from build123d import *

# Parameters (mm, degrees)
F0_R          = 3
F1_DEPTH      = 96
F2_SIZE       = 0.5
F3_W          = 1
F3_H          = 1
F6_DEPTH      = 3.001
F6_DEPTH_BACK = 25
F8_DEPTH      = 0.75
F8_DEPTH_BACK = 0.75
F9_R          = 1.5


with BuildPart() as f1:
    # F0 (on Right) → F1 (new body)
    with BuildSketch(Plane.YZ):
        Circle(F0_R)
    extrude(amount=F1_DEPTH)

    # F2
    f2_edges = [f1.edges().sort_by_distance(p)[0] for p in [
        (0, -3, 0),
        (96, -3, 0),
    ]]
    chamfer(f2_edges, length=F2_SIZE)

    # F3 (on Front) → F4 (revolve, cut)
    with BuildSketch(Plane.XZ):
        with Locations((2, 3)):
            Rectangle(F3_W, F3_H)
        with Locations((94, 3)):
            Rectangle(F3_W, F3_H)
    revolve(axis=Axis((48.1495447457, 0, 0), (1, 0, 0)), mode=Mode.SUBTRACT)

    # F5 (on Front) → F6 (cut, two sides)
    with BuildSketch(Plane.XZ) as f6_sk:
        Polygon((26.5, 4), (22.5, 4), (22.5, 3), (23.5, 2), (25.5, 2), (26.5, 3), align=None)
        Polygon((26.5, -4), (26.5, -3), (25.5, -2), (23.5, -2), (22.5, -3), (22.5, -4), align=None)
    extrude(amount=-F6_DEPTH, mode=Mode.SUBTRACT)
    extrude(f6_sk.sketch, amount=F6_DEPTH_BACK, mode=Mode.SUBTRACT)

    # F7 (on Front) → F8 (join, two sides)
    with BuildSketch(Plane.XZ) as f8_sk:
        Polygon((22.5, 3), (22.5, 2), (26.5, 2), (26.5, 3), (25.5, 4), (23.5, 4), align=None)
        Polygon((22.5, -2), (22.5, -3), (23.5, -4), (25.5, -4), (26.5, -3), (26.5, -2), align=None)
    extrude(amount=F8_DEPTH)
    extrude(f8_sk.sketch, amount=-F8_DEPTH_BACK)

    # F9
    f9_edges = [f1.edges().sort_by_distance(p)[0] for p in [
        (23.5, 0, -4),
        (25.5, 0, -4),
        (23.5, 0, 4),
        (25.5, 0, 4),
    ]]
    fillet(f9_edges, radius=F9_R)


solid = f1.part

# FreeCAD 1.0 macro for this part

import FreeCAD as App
import Part
import Sketcher


def edges_at(feature, points):
    """Names of the edges that pass closest to the given points."""
    edges = feature.Shape.Edges
    near = lambda p: min(range(len(edges)), key=lambda i: edges[i].distToShape(Part.Vertex(*p))[0])
    return sorted({f"Edge{near(p) + 1}" for p in points})


def add_polygon(sketch, points):
    """Adds a closed chain of lines whose ends are joined by coincident constraints."""
    first, n = sketch.GeometryCount, len(points)
    for a, b in zip(points, points[1:] + points[:1]):
        sketch.addGeometry(Part.LineSegment(App.Vector(*a, 0), App.Vector(*b, 0)), False)
    for i in range(n):
        sketch.addConstraint(Sketcher.Constraint("Coincident", first + i, 2, first + (i + 1) % n, 1))

doc = App.newDocument("Part")
params = doc.addObject("Spreadsheet::Sheet", "Params")
for row, (alias, value) in enumerate([
    ("sketch1_diameter", "6 mm"),
    ("pad1_length", "96 mm"),
    ("chamfer_size", "0.5 mm"),
    ("sketch2_width", "1 mm"),
    ("groove_angle", "360 deg"),
    ("sketch3_width", "4 mm"),
    ("sketch3_width2", "2 mm"),
    ("sketch3_height", "1 mm"),
    ("sketch4_width", "4 mm"),
    ("sketch4_width2", "2 mm"),
    ("sketch4_height", "1 mm"),
    ("pad2_length", "0.75 mm"),
    ("pad2_length2", "0.75 mm"),
    ("fillet_radius", "1.5 mm"),
], start=1):
    params.set(f"A{row}", alias)
    params.set(f"B{row}", "=" + value)
    params.setAlias(f"B{row}", alias)

body = doc.addObject("PartDesign::Body", "Body")

# Sketch on YZ plane
sketch1 = doc.addObject("Sketcher::SketchObject", "Sketch")
body.addObject(sketch1)
sketch1.AttachmentSupport = (doc.YZ_Plane, [""])
sketch1.MapMode = "FlatFace"
sketch1.addGeometry(Part.Circle(App.Vector(0, 0, 0), App.Vector(0, 0, 1), 3), False)
sketch1.addConstraint([
    Sketcher.Constraint("Coincident", 0, 3, -1, 1),
    Sketcher.Constraint("Diameter", 0, 6.0),
])
sketch1.setExpression("Constraints[1]", "Params.sketch1_diameter")
pad1 = doc.addObject("PartDesign::Pad", "Pad")
body.addObject(pad1)
pad1.Profile = sketch1
pad1.setExpression("Length", "Params.pad1_length")
doc.recompute()

chamfer = doc.addObject("PartDesign::Chamfer", "Chamfer")
body.addObject(chamfer)
chamfer.Base = (pad1, edges_at(pad1, [(0, -3, 0), (96, -3, 0)]))
chamfer.setExpression("Size", "Params.chamfer_size")

# Sketch on XZ plane
sketch2 = doc.addObject("Sketcher::SketchObject", "Sketch001")
body.addObject(sketch2)
sketch2.AttachmentSupport = (doc.XZ_Plane, [""])
sketch2.MapMode = "FlatFace"
add_polygon(sketch2, [(1.5, 3.5), (1.5, 2.5), (2.5, 2.5), (2.5, 3.5)])  # lines 0-3
add_polygon(sketch2, [(93.5, 3.5), (93.5, 2.5), (94.5, 2.5), (94.5, 3.5)])  # lines 4-7
sketch2.addConstraint([
    Sketcher.Constraint("Vertical", 0),
    Sketcher.Constraint("Horizontal", 1),
    Sketcher.Constraint("Vertical", 2),
    Sketcher.Constraint("Horizontal", 3),
    Sketcher.Constraint("Vertical", 4),
    Sketcher.Constraint("Horizontal", 5),
    Sketcher.Constraint("Vertical", 6),
    Sketcher.Constraint("Horizontal", 7),
    Sketcher.Constraint("Horizontal", 1, 2, 4, 2),
    Sketcher.Constraint("Horizontal", 3, 2, 6, 2),
    Sketcher.Constraint("Equal", 3, 5),
    Sketcher.Constraint("Equal", 7, 0),
    Sketcher.Constraint("DistanceX", 1, 1, 1, 2, 1.0),
    Sketcher.Constraint("DistanceX", 1, 2, 4, 2, 91.0),
    Sketcher.Constraint("DistanceX", -1, 1, 0, 2, 1.5),
    Sketcher.Constraint("DistanceY", -1, 1, 0, 2, 2.5),
])
sketch2.setExpression("Constraints[20]", "Params.sketch2_width")
groove = doc.addObject("PartDesign::Groove", "Groove")
body.addObject(groove)
groove.Profile = sketch2
groove.ReferenceAxis = (sketch2, ["H_Axis"])
groove.setExpression("Angle", "Params.groove_angle")

# Sketch on XZ plane
sketch3 = doc.addObject("Sketcher::SketchObject", "Sketch002")
body.addObject(sketch3)
sketch3.AttachmentSupport = (doc.XZ_Plane, [""])
sketch3.MapMode = "FlatFace"
add_polygon(sketch3, [(26.5, 4), (22.5, 4), (22.5, 3), (23.5, 2), (25.5, 2), (26.5, 3)])  # lines 0-5
add_polygon(sketch3, [(26.5, -4), (26.5, -3), (25.5, -2), (23.5, -2), (22.5, -3), (22.5, -4)])  # lines 6-11
sketch3.addConstraint([
    Sketcher.Constraint("Horizontal", 0),
    Sketcher.Constraint("Vertical", 1),
    Sketcher.Constraint("Horizontal", 3),
    Sketcher.Constraint("Vertical", 5),
    Sketcher.Constraint("Vertical", 6),
    Sketcher.Constraint("Horizontal", 8),
    Sketcher.Constraint("Vertical", 10),
    Sketcher.Constraint("Horizontal", 11),
    Sketcher.Constraint("Symmetric", 4, 2, 6, 2, -1),
    Sketcher.Constraint("Symmetric", 3, 2, 7, 2, -1),
    Sketcher.Constraint("Symmetric", 1, 2, 9, 2, -1),
    Sketcher.Constraint("Perpendicular", 2, 4),
    Sketcher.Constraint("Perpendicular", 4, 7),
    Sketcher.Constraint("Perpendicular", 7, 9),
    Sketcher.Constraint("Horizontal", 1, 2, 4, 2),
    Sketcher.Constraint("Equal", 5, 6),
    Sketcher.Constraint("DistanceX", 0, 2, 0, 1, 4.0),
    Sketcher.Constraint("DistanceX", 3, 1, 3, 2, 2.0),
    Sketcher.Constraint("DistanceY", 1, 2, 1, 1, 1.0),
    Sketcher.Constraint("DistanceY", -1, 1, 0, 2, 4.0),
    Sketcher.Constraint("DistanceX", -1, 1, 0, 2, 22.5),
])
sketch3.setExpression("Constraints[28]", "Params.sketch3_width")
sketch3.setExpression("Constraints[29]", "Params.sketch3_width2")
sketch3.setExpression("Constraints[30]", "Params.sketch3_height")
pocket1 = doc.addObject("PartDesign::Pocket", "Pocket")
body.addObject(pocket1)
pocket1.Profile = sketch3
pocket1.Type = "ThroughAll"
pocket1.Midplane = True

# Sketch on XZ plane
sketch4 = doc.addObject("Sketcher::SketchObject", "Sketch003")
body.addObject(sketch4)
sketch4.AttachmentSupport = (doc.XZ_Plane, [""])
sketch4.MapMode = "FlatFace"
add_polygon(sketch4, [(22.5, 3), (22.5, 2), (26.5, 2), (26.5, 3), (25.5, 4), (23.5, 4)])  # lines 0-5
add_polygon(sketch4, [(22.5, -2), (22.5, -3), (23.5, -4), (25.5, -4), (26.5, -3), (26.5, -2)])  # lines 6-11
sketch4.addConstraint([
    Sketcher.Constraint("Vertical", 0),
    Sketcher.Constraint("Horizontal", 1),
    Sketcher.Constraint("Vertical", 2),
    Sketcher.Constraint("Horizontal", 4),
    Sketcher.Constraint("Vertical", 6),
    Sketcher.Constraint("Horizontal", 8),
    Sketcher.Constraint("Vertical", 10),
    Sketcher.Constraint("Horizontal", 11),
    Sketcher.Constraint("Symmetric", 5, 2, 6, 2, -1),
    Sketcher.Constraint("Symmetric", 4, 2, 7, 2, -1),
    Sketcher.Constraint("Symmetric", 2, 2, 9, 2, -1),
    Sketcher.Constraint("Perpendicular", 3, 5),
    Sketcher.Constraint("Perpendicular", 5, 7),
    Sketcher.Constraint("Perpendicular", 7, 9),
    Sketcher.Constraint("Horizontal", 2, 2, 5, 2),
    Sketcher.Constraint("Equal", 2, 6),
    Sketcher.Constraint("DistanceX", 1, 1, 1, 2, 4.0),
    Sketcher.Constraint("DistanceX", 4, 2, 4, 1, 2.0),
    Sketcher.Constraint("DistanceY", 0, 2, 0, 1, 1.0),
    Sketcher.Constraint("DistanceY", -1, 1, 0, 2, 2.0),
    Sketcher.Constraint("DistanceX", -1, 1, 0, 2, 22.5),
])
sketch4.setExpression("Constraints[28]", "Params.sketch4_width")
sketch4.setExpression("Constraints[29]", "Params.sketch4_width2")
sketch4.setExpression("Constraints[30]", "Params.sketch4_height")
pad2 = doc.addObject("PartDesign::Pad", "Pad001")
body.addObject(pad2)
pad2.Profile = sketch4
pad2.Type = "TwoLengths"
pad2.setExpression("Length", "Params.pad2_length")
pad2.setExpression("Length2", "Params.pad2_length2")
doc.recompute()

fillet = doc.addObject("PartDesign::Fillet", "Fillet")
body.addObject(fillet)
fillet.Base = (pad2, edges_at(pad2, [
    (23.5, 0, -4),
    (25.5, 0, -4),
    (23.5, 0, 4),
    (25.5, 0, 4),
]))
fillet.setExpression("Radius", "Params.fillet_radius")

doc.recompute()
